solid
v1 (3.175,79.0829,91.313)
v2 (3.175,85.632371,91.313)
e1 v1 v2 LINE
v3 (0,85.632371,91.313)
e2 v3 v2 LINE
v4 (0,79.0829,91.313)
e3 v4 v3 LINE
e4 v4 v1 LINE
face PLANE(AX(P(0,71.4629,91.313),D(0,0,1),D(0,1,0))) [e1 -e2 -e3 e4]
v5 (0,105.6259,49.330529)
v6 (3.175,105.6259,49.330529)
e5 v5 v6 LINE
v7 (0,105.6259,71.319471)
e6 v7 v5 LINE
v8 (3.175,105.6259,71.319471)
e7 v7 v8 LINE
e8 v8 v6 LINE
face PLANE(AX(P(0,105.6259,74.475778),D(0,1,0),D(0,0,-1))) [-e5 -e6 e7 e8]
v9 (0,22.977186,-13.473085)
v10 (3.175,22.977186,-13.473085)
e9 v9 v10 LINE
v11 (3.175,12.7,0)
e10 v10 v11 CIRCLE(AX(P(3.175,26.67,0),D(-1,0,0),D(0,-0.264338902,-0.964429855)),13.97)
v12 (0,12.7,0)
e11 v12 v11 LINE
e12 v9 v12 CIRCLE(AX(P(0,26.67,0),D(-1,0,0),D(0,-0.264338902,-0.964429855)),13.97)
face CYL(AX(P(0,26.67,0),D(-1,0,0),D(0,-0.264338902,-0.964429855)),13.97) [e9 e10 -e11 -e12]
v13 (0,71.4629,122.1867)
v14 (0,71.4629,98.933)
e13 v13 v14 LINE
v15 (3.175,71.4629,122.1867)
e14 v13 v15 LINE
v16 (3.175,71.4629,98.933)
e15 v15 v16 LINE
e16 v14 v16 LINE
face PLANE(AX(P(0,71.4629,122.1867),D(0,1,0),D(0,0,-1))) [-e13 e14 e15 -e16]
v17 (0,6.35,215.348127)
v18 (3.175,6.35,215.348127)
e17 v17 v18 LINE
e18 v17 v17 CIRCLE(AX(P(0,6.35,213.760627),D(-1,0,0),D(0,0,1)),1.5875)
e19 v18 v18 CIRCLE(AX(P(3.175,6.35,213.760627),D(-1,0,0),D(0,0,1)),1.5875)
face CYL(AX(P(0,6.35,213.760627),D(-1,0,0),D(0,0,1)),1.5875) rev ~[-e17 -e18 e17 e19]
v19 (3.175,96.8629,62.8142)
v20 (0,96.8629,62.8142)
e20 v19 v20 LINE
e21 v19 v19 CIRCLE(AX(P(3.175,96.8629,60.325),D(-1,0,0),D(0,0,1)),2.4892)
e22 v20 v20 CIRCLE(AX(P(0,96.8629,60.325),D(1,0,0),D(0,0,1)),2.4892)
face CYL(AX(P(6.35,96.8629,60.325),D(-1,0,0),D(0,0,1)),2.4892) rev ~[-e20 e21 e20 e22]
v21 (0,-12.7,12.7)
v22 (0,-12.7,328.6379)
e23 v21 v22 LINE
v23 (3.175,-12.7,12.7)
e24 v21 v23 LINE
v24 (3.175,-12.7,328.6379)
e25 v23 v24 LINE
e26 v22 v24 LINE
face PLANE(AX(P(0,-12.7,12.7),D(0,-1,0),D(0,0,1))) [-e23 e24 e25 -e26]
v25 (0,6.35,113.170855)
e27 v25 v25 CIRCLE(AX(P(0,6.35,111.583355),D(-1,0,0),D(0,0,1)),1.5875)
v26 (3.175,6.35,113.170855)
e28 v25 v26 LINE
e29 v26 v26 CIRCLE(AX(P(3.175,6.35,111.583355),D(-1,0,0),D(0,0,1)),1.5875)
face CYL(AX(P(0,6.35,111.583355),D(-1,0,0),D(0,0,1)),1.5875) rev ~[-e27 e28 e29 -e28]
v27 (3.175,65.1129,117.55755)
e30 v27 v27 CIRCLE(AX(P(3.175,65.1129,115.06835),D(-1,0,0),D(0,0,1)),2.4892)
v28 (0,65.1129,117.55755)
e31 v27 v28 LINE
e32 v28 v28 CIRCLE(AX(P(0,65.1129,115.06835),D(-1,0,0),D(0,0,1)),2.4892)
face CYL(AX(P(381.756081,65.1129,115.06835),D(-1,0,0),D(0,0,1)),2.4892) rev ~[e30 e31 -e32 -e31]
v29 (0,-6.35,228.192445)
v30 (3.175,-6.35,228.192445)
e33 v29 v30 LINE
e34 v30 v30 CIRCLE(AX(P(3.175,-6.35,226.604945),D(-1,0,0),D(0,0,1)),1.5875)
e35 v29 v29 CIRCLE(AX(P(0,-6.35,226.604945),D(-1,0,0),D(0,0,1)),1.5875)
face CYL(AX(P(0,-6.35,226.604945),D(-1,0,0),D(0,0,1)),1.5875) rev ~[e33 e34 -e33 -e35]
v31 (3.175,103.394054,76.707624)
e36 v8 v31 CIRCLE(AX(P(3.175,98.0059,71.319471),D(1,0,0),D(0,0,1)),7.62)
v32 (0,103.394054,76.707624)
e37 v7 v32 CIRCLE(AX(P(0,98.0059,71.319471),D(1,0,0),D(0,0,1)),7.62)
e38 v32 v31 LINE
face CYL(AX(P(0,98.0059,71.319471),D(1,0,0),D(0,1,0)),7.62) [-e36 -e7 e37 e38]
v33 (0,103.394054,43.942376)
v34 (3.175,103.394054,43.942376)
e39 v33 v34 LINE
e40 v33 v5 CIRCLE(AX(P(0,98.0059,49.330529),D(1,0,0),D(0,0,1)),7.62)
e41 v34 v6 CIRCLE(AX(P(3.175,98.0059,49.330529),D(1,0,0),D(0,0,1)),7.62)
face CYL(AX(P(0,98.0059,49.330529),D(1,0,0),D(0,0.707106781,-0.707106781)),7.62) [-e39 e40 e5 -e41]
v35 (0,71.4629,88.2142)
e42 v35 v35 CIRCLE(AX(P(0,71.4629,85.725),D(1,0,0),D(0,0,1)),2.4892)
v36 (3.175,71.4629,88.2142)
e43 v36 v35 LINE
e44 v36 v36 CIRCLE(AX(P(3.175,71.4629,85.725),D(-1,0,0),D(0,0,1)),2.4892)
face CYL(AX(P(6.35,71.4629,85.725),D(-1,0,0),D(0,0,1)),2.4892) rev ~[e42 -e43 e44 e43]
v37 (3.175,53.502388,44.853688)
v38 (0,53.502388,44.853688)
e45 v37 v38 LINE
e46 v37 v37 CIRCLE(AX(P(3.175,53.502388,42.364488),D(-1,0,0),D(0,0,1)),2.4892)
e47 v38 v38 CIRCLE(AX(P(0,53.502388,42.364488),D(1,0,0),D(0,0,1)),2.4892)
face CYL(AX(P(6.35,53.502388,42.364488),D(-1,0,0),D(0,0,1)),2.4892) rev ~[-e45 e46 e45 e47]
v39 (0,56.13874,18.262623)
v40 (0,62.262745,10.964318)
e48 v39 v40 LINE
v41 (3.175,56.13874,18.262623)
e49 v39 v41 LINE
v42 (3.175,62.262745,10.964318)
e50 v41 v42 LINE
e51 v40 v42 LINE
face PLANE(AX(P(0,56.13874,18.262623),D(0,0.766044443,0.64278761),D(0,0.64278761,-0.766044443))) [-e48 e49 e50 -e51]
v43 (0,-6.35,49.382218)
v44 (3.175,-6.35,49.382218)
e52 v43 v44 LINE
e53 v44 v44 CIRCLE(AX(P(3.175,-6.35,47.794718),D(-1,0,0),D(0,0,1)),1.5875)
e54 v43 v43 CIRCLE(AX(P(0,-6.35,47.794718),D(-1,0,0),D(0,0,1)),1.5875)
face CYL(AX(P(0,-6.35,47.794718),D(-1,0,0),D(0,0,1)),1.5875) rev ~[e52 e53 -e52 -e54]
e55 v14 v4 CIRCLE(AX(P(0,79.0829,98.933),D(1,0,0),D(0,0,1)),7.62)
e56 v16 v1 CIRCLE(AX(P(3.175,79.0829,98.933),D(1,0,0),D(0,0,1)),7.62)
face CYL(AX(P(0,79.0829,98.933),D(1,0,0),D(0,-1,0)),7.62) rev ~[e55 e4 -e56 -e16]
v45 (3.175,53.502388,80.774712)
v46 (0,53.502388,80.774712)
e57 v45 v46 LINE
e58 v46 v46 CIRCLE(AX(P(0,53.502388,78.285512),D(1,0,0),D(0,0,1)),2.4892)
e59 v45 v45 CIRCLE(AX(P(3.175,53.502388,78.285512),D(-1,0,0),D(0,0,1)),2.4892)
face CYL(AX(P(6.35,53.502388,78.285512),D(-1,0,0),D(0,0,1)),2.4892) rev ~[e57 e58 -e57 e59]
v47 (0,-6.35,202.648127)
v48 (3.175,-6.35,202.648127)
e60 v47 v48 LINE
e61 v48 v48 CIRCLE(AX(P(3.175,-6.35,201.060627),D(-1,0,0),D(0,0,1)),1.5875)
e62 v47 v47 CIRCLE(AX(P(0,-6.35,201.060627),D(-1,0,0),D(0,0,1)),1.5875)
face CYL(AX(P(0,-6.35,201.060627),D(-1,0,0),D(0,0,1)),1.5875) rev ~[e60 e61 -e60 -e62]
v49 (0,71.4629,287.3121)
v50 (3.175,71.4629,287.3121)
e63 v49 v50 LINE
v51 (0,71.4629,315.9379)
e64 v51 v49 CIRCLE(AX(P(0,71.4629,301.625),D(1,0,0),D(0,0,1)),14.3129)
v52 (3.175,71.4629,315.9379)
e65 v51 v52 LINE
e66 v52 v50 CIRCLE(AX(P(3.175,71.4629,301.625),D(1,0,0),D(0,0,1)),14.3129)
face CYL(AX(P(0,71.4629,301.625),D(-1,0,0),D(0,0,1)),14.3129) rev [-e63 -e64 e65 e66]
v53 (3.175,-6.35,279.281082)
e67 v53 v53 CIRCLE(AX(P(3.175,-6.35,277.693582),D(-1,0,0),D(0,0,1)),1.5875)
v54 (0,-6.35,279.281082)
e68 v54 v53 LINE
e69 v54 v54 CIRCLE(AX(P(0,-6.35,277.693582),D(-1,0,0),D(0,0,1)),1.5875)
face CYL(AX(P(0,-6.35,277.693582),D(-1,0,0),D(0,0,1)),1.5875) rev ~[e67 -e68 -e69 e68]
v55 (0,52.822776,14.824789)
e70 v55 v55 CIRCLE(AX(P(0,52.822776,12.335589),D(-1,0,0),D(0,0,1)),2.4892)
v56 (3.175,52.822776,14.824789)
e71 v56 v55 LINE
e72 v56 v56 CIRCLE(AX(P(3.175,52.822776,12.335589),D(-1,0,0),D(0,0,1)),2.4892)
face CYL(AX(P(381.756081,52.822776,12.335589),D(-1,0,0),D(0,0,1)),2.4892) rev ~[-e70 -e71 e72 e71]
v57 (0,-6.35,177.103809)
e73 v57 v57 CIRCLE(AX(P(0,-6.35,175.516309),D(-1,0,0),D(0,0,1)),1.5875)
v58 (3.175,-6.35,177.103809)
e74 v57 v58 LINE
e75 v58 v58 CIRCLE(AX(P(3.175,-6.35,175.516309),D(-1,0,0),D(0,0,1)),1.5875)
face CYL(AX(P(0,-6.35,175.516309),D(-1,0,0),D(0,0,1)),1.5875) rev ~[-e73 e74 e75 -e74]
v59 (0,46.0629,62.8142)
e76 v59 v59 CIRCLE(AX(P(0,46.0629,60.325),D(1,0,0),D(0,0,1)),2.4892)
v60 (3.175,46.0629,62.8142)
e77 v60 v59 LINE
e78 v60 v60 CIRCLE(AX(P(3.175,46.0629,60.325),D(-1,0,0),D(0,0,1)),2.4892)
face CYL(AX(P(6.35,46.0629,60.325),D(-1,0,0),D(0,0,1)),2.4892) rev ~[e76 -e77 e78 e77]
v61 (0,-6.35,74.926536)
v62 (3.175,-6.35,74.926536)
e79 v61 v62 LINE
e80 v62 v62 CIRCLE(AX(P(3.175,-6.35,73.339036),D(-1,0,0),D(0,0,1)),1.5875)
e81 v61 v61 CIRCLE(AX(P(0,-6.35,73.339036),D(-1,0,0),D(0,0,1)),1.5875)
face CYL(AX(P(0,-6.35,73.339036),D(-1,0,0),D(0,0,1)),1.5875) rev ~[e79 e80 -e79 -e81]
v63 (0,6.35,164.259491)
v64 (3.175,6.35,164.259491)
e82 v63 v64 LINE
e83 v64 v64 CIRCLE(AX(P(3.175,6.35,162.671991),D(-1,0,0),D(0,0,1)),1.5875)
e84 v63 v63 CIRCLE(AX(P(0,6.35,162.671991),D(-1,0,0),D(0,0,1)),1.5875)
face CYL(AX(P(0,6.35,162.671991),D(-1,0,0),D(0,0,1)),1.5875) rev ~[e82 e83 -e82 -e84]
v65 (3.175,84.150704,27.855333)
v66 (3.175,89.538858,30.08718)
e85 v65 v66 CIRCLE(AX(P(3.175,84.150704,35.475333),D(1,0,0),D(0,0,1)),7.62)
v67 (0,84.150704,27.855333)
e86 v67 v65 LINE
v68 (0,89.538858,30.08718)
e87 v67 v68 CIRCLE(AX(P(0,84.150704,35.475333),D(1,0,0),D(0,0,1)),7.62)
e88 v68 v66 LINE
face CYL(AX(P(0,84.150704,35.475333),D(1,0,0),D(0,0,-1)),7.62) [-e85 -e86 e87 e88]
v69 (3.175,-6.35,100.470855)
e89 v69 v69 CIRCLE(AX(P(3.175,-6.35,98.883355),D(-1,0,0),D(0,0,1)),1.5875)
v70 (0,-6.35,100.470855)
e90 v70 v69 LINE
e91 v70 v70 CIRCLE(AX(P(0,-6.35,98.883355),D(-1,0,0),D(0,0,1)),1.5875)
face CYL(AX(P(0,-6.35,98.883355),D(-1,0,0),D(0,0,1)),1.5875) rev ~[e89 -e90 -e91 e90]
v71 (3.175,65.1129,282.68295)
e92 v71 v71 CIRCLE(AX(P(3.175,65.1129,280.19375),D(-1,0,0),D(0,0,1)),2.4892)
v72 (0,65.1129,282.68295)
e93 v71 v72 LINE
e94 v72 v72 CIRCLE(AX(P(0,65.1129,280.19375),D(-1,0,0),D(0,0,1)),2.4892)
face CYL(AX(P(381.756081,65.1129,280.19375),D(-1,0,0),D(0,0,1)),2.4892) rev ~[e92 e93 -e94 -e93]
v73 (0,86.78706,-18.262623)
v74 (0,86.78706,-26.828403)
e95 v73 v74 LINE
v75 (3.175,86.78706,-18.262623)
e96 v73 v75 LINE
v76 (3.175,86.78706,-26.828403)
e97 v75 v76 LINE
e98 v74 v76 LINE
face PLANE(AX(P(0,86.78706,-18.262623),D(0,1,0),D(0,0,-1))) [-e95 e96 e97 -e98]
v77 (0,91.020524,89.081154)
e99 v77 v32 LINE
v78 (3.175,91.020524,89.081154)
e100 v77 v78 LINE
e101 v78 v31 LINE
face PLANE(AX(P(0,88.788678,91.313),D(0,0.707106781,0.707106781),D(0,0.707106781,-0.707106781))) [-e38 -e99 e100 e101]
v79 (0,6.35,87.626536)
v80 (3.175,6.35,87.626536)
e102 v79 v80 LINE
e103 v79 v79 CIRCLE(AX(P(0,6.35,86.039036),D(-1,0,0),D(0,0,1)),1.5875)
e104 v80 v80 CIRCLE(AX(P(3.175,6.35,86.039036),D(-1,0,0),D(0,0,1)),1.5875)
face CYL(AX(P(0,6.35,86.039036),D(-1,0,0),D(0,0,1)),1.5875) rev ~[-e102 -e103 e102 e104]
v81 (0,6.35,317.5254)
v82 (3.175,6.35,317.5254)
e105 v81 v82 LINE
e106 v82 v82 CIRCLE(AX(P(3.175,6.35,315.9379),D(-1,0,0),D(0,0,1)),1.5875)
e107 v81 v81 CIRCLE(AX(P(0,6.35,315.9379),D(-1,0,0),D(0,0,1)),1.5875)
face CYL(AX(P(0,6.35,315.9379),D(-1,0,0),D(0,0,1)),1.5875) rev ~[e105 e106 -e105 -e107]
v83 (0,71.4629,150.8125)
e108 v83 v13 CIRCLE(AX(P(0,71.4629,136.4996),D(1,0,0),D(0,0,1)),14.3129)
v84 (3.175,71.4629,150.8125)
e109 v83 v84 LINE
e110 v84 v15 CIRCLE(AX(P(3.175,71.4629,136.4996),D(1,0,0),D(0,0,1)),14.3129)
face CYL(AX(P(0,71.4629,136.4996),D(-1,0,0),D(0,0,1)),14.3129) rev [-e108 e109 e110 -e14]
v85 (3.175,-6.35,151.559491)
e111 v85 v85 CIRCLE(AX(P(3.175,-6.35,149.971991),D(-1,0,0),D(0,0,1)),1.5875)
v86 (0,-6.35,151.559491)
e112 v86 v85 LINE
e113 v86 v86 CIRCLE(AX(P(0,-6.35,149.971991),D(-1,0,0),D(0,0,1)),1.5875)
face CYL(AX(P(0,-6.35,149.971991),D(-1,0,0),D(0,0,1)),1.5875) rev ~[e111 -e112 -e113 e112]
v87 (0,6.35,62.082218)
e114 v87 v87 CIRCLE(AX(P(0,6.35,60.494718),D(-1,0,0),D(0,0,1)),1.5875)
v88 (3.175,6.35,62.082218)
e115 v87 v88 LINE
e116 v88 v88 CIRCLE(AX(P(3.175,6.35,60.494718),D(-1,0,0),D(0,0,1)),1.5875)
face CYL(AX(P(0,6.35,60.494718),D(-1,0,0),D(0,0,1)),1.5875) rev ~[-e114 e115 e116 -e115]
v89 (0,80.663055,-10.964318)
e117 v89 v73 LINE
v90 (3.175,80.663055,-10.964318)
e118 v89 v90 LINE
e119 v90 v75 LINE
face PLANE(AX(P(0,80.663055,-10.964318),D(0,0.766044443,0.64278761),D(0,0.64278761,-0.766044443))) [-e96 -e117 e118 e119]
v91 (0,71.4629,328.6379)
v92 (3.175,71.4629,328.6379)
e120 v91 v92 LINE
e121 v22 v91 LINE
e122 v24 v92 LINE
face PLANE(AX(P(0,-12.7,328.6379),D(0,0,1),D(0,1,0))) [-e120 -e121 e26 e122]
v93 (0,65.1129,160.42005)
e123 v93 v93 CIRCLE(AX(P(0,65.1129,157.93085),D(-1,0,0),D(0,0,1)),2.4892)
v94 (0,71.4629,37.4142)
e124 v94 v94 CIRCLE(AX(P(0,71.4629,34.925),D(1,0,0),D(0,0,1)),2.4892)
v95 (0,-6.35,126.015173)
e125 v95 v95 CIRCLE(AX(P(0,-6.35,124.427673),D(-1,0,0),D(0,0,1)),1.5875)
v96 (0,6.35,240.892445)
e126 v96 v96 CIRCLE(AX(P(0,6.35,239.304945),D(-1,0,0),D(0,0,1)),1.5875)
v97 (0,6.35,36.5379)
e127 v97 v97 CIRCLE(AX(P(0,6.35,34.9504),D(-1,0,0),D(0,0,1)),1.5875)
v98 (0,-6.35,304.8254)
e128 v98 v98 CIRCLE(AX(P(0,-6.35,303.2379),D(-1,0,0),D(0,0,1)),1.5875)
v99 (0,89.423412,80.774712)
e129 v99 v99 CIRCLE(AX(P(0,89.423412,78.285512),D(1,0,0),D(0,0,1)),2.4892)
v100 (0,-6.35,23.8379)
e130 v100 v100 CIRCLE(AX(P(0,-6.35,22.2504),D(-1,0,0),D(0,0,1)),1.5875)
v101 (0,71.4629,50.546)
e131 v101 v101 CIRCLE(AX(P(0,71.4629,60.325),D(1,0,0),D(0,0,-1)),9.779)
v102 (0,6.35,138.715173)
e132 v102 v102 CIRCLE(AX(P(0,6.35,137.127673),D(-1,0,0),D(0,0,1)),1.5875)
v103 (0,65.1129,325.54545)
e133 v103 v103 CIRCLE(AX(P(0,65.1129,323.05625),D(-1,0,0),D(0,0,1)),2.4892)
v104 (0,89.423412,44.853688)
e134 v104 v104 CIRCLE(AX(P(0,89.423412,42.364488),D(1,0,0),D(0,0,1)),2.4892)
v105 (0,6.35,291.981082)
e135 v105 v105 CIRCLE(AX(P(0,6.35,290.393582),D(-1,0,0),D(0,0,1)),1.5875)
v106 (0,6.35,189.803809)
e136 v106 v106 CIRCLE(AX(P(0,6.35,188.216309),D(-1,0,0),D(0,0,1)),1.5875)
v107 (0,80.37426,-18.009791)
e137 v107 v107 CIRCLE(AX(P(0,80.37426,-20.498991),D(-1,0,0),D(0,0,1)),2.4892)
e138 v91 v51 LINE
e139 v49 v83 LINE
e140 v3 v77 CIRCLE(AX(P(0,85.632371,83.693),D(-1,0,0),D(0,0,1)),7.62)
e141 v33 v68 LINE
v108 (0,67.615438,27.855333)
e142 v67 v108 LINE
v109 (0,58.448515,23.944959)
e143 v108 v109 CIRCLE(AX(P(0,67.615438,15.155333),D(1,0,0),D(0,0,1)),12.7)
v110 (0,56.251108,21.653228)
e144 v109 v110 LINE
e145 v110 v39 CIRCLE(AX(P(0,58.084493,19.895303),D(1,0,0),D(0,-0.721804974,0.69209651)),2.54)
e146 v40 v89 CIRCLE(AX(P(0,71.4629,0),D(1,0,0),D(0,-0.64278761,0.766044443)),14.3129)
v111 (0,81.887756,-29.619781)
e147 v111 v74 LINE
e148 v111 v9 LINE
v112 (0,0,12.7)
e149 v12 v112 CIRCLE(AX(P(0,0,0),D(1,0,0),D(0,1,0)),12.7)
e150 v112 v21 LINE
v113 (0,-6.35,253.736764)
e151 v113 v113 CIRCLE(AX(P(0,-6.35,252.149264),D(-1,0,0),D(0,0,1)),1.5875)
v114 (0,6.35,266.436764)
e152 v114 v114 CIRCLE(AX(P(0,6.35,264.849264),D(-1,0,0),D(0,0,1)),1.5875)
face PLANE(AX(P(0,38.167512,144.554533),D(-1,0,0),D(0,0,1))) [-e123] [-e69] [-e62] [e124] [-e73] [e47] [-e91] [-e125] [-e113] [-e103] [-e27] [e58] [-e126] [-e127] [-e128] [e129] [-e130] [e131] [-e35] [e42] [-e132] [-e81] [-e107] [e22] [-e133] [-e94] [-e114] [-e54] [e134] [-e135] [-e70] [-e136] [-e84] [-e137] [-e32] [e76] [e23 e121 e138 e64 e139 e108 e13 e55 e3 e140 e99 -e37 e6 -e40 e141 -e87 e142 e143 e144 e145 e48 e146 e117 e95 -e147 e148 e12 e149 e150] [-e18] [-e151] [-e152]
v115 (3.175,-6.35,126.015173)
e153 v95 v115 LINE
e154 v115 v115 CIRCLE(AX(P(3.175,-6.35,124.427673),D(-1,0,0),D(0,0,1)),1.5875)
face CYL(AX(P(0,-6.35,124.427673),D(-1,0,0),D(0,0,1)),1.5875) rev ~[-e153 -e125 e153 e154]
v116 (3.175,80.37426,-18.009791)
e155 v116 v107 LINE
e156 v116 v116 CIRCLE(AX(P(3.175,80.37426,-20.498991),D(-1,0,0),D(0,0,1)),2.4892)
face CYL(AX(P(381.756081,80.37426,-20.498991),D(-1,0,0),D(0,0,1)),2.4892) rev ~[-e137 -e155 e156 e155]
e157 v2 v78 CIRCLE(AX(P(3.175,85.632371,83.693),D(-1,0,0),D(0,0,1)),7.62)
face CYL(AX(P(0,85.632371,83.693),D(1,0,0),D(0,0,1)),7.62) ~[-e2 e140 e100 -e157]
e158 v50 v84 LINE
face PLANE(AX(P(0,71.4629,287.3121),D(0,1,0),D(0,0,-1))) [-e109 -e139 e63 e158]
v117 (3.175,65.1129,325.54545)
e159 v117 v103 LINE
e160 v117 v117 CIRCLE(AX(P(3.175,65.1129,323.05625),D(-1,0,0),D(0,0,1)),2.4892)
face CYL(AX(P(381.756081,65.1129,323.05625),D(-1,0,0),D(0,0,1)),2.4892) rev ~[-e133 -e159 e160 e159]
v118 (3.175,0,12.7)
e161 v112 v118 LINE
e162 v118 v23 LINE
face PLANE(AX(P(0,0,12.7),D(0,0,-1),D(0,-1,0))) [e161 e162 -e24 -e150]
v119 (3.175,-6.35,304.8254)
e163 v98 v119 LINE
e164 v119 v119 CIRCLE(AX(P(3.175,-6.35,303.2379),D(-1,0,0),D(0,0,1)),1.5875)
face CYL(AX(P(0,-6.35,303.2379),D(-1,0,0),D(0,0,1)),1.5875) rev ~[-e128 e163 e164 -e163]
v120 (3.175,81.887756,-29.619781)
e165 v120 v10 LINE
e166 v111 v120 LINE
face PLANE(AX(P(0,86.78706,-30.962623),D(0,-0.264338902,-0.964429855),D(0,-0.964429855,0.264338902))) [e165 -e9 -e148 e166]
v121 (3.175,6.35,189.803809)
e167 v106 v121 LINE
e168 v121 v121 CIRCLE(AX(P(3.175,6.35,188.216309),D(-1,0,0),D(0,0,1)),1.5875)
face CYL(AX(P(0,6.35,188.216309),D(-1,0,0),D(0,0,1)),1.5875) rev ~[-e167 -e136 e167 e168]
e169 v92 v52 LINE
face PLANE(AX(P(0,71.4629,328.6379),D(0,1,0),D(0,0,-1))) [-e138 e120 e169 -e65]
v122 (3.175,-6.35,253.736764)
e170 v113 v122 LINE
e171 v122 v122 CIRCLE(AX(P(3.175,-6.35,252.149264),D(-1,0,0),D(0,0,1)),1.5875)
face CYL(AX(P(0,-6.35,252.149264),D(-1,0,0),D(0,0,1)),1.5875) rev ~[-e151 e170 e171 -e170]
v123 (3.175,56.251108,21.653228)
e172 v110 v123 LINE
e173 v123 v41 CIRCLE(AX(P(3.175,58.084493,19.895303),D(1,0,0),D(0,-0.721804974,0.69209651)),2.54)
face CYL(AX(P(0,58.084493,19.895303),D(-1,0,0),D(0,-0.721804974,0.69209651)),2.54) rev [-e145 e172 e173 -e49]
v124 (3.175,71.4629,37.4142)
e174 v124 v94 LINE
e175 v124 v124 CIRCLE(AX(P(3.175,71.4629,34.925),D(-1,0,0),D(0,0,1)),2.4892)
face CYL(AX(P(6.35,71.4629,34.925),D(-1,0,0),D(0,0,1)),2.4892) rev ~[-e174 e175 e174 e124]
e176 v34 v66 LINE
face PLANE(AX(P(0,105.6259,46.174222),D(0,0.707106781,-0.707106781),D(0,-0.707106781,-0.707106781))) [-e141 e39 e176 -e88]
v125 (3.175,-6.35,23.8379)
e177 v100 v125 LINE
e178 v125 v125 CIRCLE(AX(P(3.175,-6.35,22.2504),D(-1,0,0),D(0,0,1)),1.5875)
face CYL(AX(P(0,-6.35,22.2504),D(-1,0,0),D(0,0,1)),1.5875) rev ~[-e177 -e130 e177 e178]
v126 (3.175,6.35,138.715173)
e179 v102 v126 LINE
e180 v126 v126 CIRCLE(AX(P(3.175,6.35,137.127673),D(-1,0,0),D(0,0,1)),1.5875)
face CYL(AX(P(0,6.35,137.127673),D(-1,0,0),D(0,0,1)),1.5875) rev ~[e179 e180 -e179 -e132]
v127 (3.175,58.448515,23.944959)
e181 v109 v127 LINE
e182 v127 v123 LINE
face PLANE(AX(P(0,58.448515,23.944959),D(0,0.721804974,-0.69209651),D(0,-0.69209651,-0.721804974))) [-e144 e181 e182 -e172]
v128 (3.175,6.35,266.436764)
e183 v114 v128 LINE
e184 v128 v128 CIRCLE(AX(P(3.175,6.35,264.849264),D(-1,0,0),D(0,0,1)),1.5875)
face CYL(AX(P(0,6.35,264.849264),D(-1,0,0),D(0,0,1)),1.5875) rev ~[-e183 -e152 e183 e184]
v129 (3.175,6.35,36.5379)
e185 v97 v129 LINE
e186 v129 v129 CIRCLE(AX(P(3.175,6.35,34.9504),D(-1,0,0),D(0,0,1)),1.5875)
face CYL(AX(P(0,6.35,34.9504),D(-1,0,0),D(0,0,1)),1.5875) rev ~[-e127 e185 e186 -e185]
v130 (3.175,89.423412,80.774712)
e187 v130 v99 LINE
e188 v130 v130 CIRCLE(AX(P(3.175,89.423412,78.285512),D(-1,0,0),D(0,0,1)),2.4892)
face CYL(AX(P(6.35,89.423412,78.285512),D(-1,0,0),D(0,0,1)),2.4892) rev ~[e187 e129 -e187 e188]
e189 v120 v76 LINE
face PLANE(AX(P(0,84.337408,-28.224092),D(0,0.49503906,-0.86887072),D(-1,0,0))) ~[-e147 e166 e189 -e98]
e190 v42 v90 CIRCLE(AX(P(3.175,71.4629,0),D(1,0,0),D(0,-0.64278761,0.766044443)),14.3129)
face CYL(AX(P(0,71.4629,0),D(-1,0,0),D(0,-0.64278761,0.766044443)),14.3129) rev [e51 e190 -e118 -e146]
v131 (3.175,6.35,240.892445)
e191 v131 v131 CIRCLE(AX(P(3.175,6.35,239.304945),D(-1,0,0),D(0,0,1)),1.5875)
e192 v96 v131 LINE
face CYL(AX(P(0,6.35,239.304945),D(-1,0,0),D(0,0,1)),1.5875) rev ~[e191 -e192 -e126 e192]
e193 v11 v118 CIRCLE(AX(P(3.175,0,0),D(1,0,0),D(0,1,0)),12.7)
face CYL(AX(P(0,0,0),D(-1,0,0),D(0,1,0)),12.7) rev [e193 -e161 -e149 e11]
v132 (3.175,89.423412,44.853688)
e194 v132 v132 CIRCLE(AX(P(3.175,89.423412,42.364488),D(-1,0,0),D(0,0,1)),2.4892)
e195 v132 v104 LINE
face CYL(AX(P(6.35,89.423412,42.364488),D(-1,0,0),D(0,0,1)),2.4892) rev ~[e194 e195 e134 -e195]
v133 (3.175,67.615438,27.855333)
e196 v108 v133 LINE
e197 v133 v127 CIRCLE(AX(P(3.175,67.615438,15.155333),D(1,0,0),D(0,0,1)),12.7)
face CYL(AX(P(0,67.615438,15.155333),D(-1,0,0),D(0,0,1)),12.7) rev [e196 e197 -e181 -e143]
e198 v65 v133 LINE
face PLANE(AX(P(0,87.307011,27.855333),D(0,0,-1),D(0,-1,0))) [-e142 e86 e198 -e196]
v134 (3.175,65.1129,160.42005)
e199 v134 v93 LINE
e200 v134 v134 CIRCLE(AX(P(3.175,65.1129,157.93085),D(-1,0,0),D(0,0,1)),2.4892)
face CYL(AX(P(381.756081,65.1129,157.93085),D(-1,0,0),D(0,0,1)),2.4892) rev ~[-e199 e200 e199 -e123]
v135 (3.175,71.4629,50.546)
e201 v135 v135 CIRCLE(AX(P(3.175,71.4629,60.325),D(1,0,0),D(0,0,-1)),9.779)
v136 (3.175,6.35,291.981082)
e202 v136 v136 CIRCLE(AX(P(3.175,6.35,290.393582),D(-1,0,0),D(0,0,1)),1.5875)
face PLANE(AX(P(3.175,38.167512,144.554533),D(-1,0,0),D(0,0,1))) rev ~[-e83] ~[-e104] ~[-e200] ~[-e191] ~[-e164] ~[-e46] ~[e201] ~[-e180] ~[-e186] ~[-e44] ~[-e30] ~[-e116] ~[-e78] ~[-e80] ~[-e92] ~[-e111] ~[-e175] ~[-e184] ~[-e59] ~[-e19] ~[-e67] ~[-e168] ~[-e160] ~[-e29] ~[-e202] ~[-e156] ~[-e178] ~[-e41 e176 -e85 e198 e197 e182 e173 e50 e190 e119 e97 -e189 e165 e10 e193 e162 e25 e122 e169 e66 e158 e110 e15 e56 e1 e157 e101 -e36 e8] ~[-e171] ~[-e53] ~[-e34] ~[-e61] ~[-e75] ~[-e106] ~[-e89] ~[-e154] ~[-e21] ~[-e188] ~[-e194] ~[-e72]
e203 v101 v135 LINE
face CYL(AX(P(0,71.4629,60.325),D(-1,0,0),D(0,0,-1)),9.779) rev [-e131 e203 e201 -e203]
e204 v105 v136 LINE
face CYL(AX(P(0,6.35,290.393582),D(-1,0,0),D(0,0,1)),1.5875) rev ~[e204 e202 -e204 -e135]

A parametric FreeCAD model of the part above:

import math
import FreeCAD as App
import Part
import Sketcher
Q = App.Units.Quantity


def edges_at(feature, points):
    """Names of the edges that pass closest to the given points."""
    edges = feature.Shape.Edges
    near = lambda p: min(range(len(edges)), key=lambda i: edges[i].distToShape(Part.Vertex(*p))[0])
    return sorted({f"Edge{near(p) + 1}" for p in points})

doc = App.newDocument("Part")
params = doc.addObject("Spreadsheet::Sheet", "Params")
for row, (alias, value) in enumerate([
    ("sketch1_radius", "0.5 in"),
    ("sketch1_radius2", "0.1 in"),
    ("sketch1_diameter", "0.19 in"),
    ("sketch1_diameter2", "0.77 in"),
    ("sketch1_radius3", "0.55 in"),
    ("pad1_length", "0.125 in"),
    ("sketch2_diameter", "0.196 in"),
    ("hole_diameter", "0.196 in"),
    ("sketch3_diameter", "0.196 in"),
    ("hole2_diameter", "0.196 in"),
    ("hole2_depth", "0.125 in"),
    ("chamfer_size", "0.2 in"),
    ("chamfer_size2", "4.13422 mm"),
    ("fillet_radius", "0.3 in"),
    ("sketch4_diameter", "0.125 in"),
], start=1):
    params.set(f"A{row}", alias)
    params.set(f"B{row}", "=" + value)
    params.setAlias(f"B{row}", alias)

body = doc.addObject("PartDesign::Body", "Body")

# Sketch on YZ plane
sketch1 = body.newObject("Sketcher::SketchObject", "Sketch")
sketch1.AttachmentSupport = (doc.getObject("YZ_Plane"), [""])
sketch1.MapMode = "FlatFace"
sketch1.addGeometry([
    Part.LineSegment(App.Vector(-12.7, 328.6, 0), App.Vector(-12.7, 12.7, 0)),  # 0
    Part.LineSegment(App.Vector(-12.7, 12.7, 0), App.Vector(0, 12.7, 0)),  # 1
    Part.ArcOfCircle(Part.Circle(App.Vector(0, 0, 0), App.Vector(0, 0, 1), 12.7), math.radians(0), math.radians(90)),  # 2
    Part.ArcOfCircle(Part.Circle(App.Vector(26.7, 0, 0), App.Vector(0, 0, 1), 14), math.radians(-180), math.radians(-105)),  # 3
    Part.LineSegment(App.Vector(23, -13.5, 0), App.Vector(86.8, -31, 0)),  # 4
    Part.LineSegment(App.Vector(86.8, -31, 0), App.Vector(86.8, -18.3, 0)),  # 5
    Part.LineSegment(App.Vector(86.8, -18.3, 0), App.Vector(80.7, -11, 0)),  # 6
    Part.ArcOfCircle(Part.Circle(App.Vector(71.5, 0, 0), App.Vector(0, 0, 1), 14.3), math.radians(130), math.radians(310)),  # 7
    Part.LineSegment(App.Vector(62.3, 11, 0), App.Vector(56.1, 18.3, 0)),  # 8
    Part.ArcOfCircle(Part.Circle(App.Vector(58.1, 19.9, 0), App.Vector(0, 0, 1), 2.5), math.radians(136), math.radians(220)),  # 9
    Part.LineSegment(App.Vector(56.3, 21.7, 0), App.Vector(58.4, 23.9, 0)),  # 10
    Part.ArcOfCircle(Part.Circle(App.Vector(67.6, 15.2, 0), App.Vector(0, 0, 1), 12.7), math.radians(90), math.radians(136)),  # 11
    Part.LineSegment(App.Vector(67.6, 27.9, 0), App.Vector(87.3, 27.9, 0)),  # 12
    Part.LineSegment(App.Vector(87.3, 27.9, 0), App.Vector(105.6, 46.2, 0)),  # 13
    Part.LineSegment(App.Vector(105.6, 46.2, 0), App.Vector(105.6, 74.5, 0)),  # 14
    Part.LineSegment(App.Vector(105.6, 74.5, 0), App.Vector(88.8, 91.3, 0)),  # 15
    Part.LineSegment(App.Vector(88.8, 91.3, 0), App.Vector(71.5, 91.3, 0)),  # 16
    Part.LineSegment(App.Vector(71.5, 91.3, 0), App.Vector(71.5, 122.2, 0)),  # 17
    Part.ArcOfCircle(Part.Circle(App.Vector(71.5, 136.5, 0), App.Vector(0, 0, 1), 14.3), math.radians(90), math.radians(270)),  # 18
    Part.LineSegment(App.Vector(71.5, 150.8, 0), App.Vector(71.5, 287.3, 0)),  # 19
    Part.ArcOfCircle(Part.Circle(App.Vector(71.5, 301.6, 0), App.Vector(0, 0, 1), 14.3), math.radians(90), math.radians(270)),  # 20
    Part.LineSegment(App.Vector(71.5, 315.9, 0), App.Vector(71.5, 328.6, 0)),  # 21
    Part.LineSegment(App.Vector(71.5, 328.6, 0), App.Vector(-12.7, 328.6, 0)),  # 22
    Part.Circle(App.Vector(53.5, 42.4, 0), App.Vector(0, 0, 1), 2.4),  # 23
    Part.Circle(App.Vector(46.1, 60.3, 0), App.Vector(0, 0, 1), 2.4),  # 24
    Part.Circle(App.Vector(53.5, 78.3, 0), App.Vector(0, 0, 1), 2.4),  # 25
    Part.Circle(App.Vector(71.5, 34.9, 0), App.Vector(0, 0, 1), 2.4),  # 26
    Part.Circle(App.Vector(89.4, 42.4, 0), App.Vector(0, 0, 1), 2.4),  # 27
    Part.Circle(App.Vector(71.5, 60.3, 0), App.Vector(0, 0, 1), 9.8),  # 28
    Part.Circle(App.Vector(71.5, 85.7, 0), App.Vector(0, 0, 1), 2.4),  # 29
    Part.Circle(App.Vector(96.9, 60.3, 0), App.Vector(0, 0, 1), 2.4),  # 30
    Part.Circle(App.Vector(89.4, 78.3, 0), App.Vector(0, 0, 1), 2.4),  # 31
], False)
sketch1.addConstraint([
    Sketcher.Constraint("Coincident", 0, 2, 1, 1),
    Sketcher.Constraint("Tangent", 1, 2, 2, 2),
    Sketcher.Constraint("Tangent", 2, 1, 3, 1),
    Sketcher.Constraint("Tangent", 3, 2, 4, 1),
    Sketcher.Constraint("Coincident", 4, 2, 5, 1),
    Sketcher.Constraint("Coincident", 5, 2, 6, 1),
    Sketcher.Constraint("Coincident", 6, 2, 7, 2),
    Sketcher.Constraint("Coincident", 7, 1, 8, 1),
    Sketcher.Constraint("Tangent", 8, 2, 9, 2),
    Sketcher.Constraint("Tangent", 9, 1, 10, 1),
    Sketcher.Constraint("Tangent", 10, 2, 11, 2),
    Sketcher.Constraint("Tangent", 11, 1, 12, 1),
    Sketcher.Constraint("Coincident", 12, 2, 13, 1),
    Sketcher.Constraint("Coincident", 13, 2, 14, 1),
    Sketcher.Constraint("Coincident", 14, 2, 15, 1),
    Sketcher.Constraint("Coincident", 15, 2, 16, 1),
    Sketcher.Constraint("Coincident", 16, 2, 17, 1),
    Sketcher.Constraint("Coincident", 17, 2, 18, 2),
    Sketcher.Constraint("Coincident", 18, 1, 19, 1),
    Sketcher.Constraint("Coincident", 19, 2, 20, 2),
    Sketcher.Constraint("Coincident", 20, 1, 21, 1),
    Sketcher.Constraint("Coincident", 21, 2, 22, 1),
    Sketcher.Constraint("Coincident", 22, 2, 0, 1),
    Sketcher.Constraint("Vertical", 0),
    Sketcher.Constraint("Horizontal", 1),
    Sketcher.Constraint("Vertical", 5),
    Sketcher.Constraint("Horizontal", 12),
    Sketcher.Constraint("Vertical", 14),
    Sketcher.Constraint("Horizontal", 16),
    Sketcher.Constraint("Vertical", 17),
    Sketcher.Constraint("Vertical", 19),
    Sketcher.Constraint("Vertical", 21),
    Sketcher.Constraint("Horizontal", 22),
    Sketcher.Constraint("Coincident", 2, 3, -1, 1),
    Sketcher.Constraint("Equal", 2, 11),
    Sketcher.Constraint("Equal", 7, 18),
    Sketcher.Constraint("Equal", 18, 20),
    Sketcher.Constraint("Equal", 23, 24),
    Sketcher.Constraint("Equal", 24, 25),
    Sketcher.Constraint("Equal", 25, 26),
    Sketcher.Constraint("Equal", 26, 27),
    Sketcher.Constraint("Equal", 27, 29),
    Sketcher.Constraint("Equal", 29, 30),
    Sketcher.Constraint("Equal", 30, 31),
    Sketcher.Constraint("PointOnObject", 3, 3, -1),
    Sketcher.Constraint("PointOnObject", 7, 3, -1),
    Sketcher.Constraint("Parallel", 6, 8),
    Sketcher.Constraint("Perpendicular", 13, 15),
    Sketcher.Constraint("Horizontal", 23, 3, 27, 3),
    Sketcher.Constraint("Horizontal", 24, 3, 28, 3),
    Sketcher.Constraint("Horizontal", 28, 3, 30, 3),
    Sketcher.Constraint("Horizontal", 25, 3, 31, 3),
    Sketcher.Constraint("Vertical", 7, 3, 18, 3),
    Sketcher.Constraint("Vertical", 18, 3, 20, 3),
    Sketcher.Constraint("Vertical", 23, 3, 25, 3),
    Sketcher.Constraint("Vertical", 20, 3, 26, 3),
    Sketcher.Constraint("Vertical", 26, 3, 28, 3),
    Sketcher.Constraint("Vertical", 28, 3, 29, 3),
    Sketcher.Constraint("Vertical", 27, 3, 31, 3),
    Sketcher.Constraint("Vertical", 29, 3, 16, 2),
    Sketcher.Constraint("Vertical", 17, 2, 18, 1),
    Sketcher.Constraint("Vertical", 19, 2, 20, 1),
    Sketcher.Constraint("Equal", 1, 5),
    Sketcher.Constraint("Equal", 5, 21),
    Sketcher.Constraint("Equal", 6, 8),
    Sketcher.Constraint("Radius", 2, Q("0.5 in")),
    Sketcher.Constraint("Radius", 9, Q("0.1 in")),
    Sketcher.Constraint("Diameter", 23, Q("0.19 in")),
    Sketcher.Constraint("Diameter", 28, Q("0.77 in")),
    Sketcher.Constraint("Radius", 3, Q("0.55 in")),
    Sketcher.Constraint("DistanceX", 1, 1, 1, 2, Q("0.5 in")),
    Sketcher.Constraint("Angle", 6, Q("130 deg")),
    Sketcher.Constraint("Angle", 13, Q("45 deg")),
    Sketcher.Constraint("DistanceX", 24, 3, 7, 3, Q("1 in")),
    Sketcher.Constraint("DistanceY", 26, 3, 24, 3, Q("1 in")),
    Sketcher.Constraint("DistanceY", 28, 3, 29, 3, Q("1 in")),
    Sketcher.Constraint("DistanceX", 28, 3, 30, 3, Q("1 in")),
    Sketcher.Constraint("Radius", 7, Q("0.5635 in")),
    Sketcher.Constraint("DistanceY", 19, 1, 19, 2, Q("5.374 in")),
    Sketcher.Constraint("DistanceY", 29, 3, 15, 2, Q("0.22 in")),
    Sketcher.Constraint("Distance", 10, Q("0.125 in")),
    Sketcher.Constraint("DistanceX", 22, 2, 22, 1, Q("3.3135 in")),
    Sketcher.Constraint("DistanceY", 0, 2, 0, 1, Q("12.4385 in")),
    Sketcher.Constraint("DistanceY", 17, 1, 17, 2, Q("1.2155 in")),
    Sketcher.Constraint("DistanceX", 30, 3, 13, 2, Q("0.345 in")),
    Sketcher.Constraint("DistanceX", 12, 2, 27, 3, 2.116401),
    Sketcher.Constraint("Distance", 6, 9.527261),
    Sketcher.Constraint("Distance", 13, 25.906821),
    Sketcher.Constraint("DistanceX", 12, 1, 12, 2, 19.691573),
    Sketcher.Constraint("DistanceX", 16, 2, 16, 1, 17.325778),
    Sketcher.Constraint("DistanceY", 14, 1, 14, 2, 28.301556),
    Sketcher.Constraint("DistanceX", -1, 1, 4, 2, 86.78706),
    Sketcher.Constraint("DistanceX", 23, 3, 11, 3, 14.11305),
    Sketcher.Constraint("DistanceY", 9, 3, 25, 3, 58.390209),
    Sketcher.Constraint("DistanceY", 27, 3, 14, 2, 32.11129),
])
sketch1.setExpression("Constraints[65]", "Params.sketch1_radius")
sketch1.setExpression("Constraints[66]", "Params.sketch1_radius2")
sketch1.setExpression("Constraints[67]", "Params.sketch1_diameter")
sketch1.setExpression("Constraints[68]", "Params.sketch1_diameter2")
sketch1.setExpression("Constraints[69]", "Params.sketch1_radius3")
pad1 = body.newObject("PartDesign::Pad", "Pad")
pad1.Profile = sketch1
pad1.setExpression("Length", "Params.pad1_length")

# Sketch on YZ plane
sketch2 = body.newObject("Sketcher::SketchObject", "Sketch001")
sketch2.AttachmentSupport = (doc.getObject("YZ_Plane"), [""])
sketch2.MapMode = "FlatFace"
sketch2.AttachmentOffset = App.Placement(App.Vector(0, 0, 0.125 * 25.4), App.Rotation())
sketch2.addGeometry([
    Part.Circle(App.Vector(65.1, 323.1, 0), App.Vector(0, 0, 1), 2.5),  # 0
    Part.Circle(App.Vector(65.1, 280.2, 0), App.Vector(0, 0, 1), 2.5),  # 1
    Part.Circle(App.Vector(65.1, 157.9, 0), App.Vector(0, 0, 1), 2.5),  # 2
    Part.Circle(App.Vector(65.1, 115.1, 0), App.Vector(0, 0, 1), 2.5),  # 3
    Part.Circle(App.Vector(52.8, 12.3, 0), App.Vector(0, 0, 1), 2.5),  # 4
    Part.Circle(App.Vector(80.4, -20.5, 0), App.Vector(0, 0, 1), 2.5),  # 5
], False)
sketch2.addConstraint([
    Sketcher.Constraint("Equal", 0, 1),
    Sketcher.Constraint("Equal", 1, 2),
    Sketcher.Constraint("Equal", 2, 3),
    Sketcher.Constraint("Equal", 3, 4),
    Sketcher.Constraint("Equal", 4, 5),
    Sketcher.Constraint("Vertical", 0, 3, 1, 3),
    Sketcher.Constraint("Vertical", 1, 3, 2, 3),
    Sketcher.Constraint("Vertical", 2, 3, 3, 3),
    Sketcher.Constraint("Diameter", 0, Q("0.196 in")),
    Sketcher.Constraint("DistanceY", -1, 1, 0, 3, Q("12.71875 in")),
    Sketcher.Constraint("DistanceY", -1, 1, 1, 3, Q("11.03125 in")),
    Sketcher.Constraint("DistanceY", 2, 3, 0, 3, Q("6.501 in")),
    Sketcher.Constraint("DistanceY", 3, 3, 2, 3, Q("1.6875 in")),
    Sketcher.Constraint("DistanceX", -1, 1, 0, 3, Q("2.5635 in")),
    Sketcher.Constraint("DistanceY", 5, 3, 4, 3, Q("1.2927 in")),
    Sketcher.Constraint("DistanceY", -1, 1, 4, 3, 12.335589),
    Sketcher.Constraint("DistanceX", -1, 1, 5, 3, 80.37426),
    Sketcher.Constraint("DistanceX", -1, 1, 4, 3, 52.822776),
])
sketch2.setExpression("Constraints[8]", "Params.sketch2_diameter")
doc.recompute()
hole = body.newObject("PartDesign::Hole", "Hole")
hole.Profile = sketch2
hole.ThreadType = "None"
hole.setExpression("Diameter", "Params.hole_diameter")
hole.DepthType = "ThroughAll"

# Sketch on YZ plane
sketch3 = body.newObject("Sketcher::SketchObject", "Sketch002")
sketch3.AttachmentSupport = (doc.getObject("YZ_Plane"), [""])
sketch3.MapMode = "FlatFace"
sketch3.AttachmentOffset = App.Placement(App.Vector(0, 0, 0.125 * 25.4), App.Rotation())
sketch3.addGeometry([
    Part.Circle(App.Vector(96.9, 60.3, 0), App.Vector(0, 0, 1), 2.5),  # 0
    Part.Circle(App.Vector(89.4, 42.4, 0), App.Vector(0, 0, 1), 2.5),  # 1
    Part.Circle(App.Vector(71.5, 34.9, 0), App.Vector(0, 0, 1), 2.5),  # 2
    Part.Circle(App.Vector(53.5, 42.4, 0), App.Vector(0, 0, 1), 2.5),  # 3
    Part.Circle(App.Vector(46.1, 60.3, 0), App.Vector(0, 0, 1), 2.5),  # 4
    Part.Circle(App.Vector(53.5, 78.3, 0), App.Vector(0, 0, 1), 2.5),  # 5
    Part.Circle(App.Vector(71.5, 85.7, 0), App.Vector(0, 0, 1), 2.5),  # 6
    Part.Circle(App.Vector(89.4, 78.3, 0), App.Vector(0, 0, 1), 2.5),  # 7
], False)
sketch3.addConstraint([
    Sketcher.Constraint("Equal", 0, 1),
    Sketcher.Constraint("Equal", 1, 2),
    Sketcher.Constraint("Equal", 2, 3),
    Sketcher.Constraint("Equal", 3, 4),
    Sketcher.Constraint("Equal", 4, 5),
    Sketcher.Constraint("Equal", 5, 6),
    Sketcher.Constraint("Equal", 6, 7),
    Sketcher.Constraint("Horizontal", 1, 3, 3, 3),
    Sketcher.Constraint("Horizontal", 0, 3, 4, 3),
    Sketcher.Constraint("Horizontal", 5, 3, 7, 3),
    Sketcher.Constraint("Vertical", 3, 3, 5, 3),
    Sketcher.Constraint("Vertical", 2, 3, 6, 3),
    Sketcher.Constraint("Vertical", 1, 3, 7, 3),
    Sketcher.Constraint("Diameter", 0, Q("0.196 in")),
    Sketcher.Constraint("DistanceX", 2, 3, 0, 3, Q("1 in")),
    Sketcher.Constraint("DistanceY", 2, 3, 0, 3, Q("1 in")),
    Sketcher.Constraint("DistanceX", 4, 3, 2, 3, Q("1 in")),
    Sketcher.Constraint("DistanceY", 0, 3, 6, 3, Q("1 in")),
    Sketcher.Constraint("DistanceY", -1, 1, 0, 3, Q("2.375 in")),
    Sketcher.Constraint("DistanceX", -1, 1, 0, 3, Q("3.8135 in")),
    Sketcher.Constraint("DistanceX", -1, 1, 1, 3, 89.423412),
    Sketcher.Constraint("DistanceY", -1, 1, 1, 3, 42.364488),
    Sketcher.Constraint("DistanceX", -1, 1, 3, 3, 53.502388),
    Sketcher.Constraint("DistanceY", -1, 1, 5, 3, 78.285512),
])
sketch3.setExpression("Constraints[13]", "Params.sketch3_diameter")
doc.recompute()
hole2 = body.newObject("PartDesign::Hole", "Hole001")
hole2.Profile = sketch3
hole2.ThreadType = "None"
hole2.setExpression("Diameter", "Params.hole2_diameter")
hole2.DepthType = "Dimension"
hole2.setExpression("Depth", "Params.hole2_depth")
hole2.DrillPoint = "Angled"
hole2.DrillPointAngle = 118
doc.recompute()

chamfer = body.newObject("PartDesign::Chamfer", "Chamfer")
chamfer.Base = (hole2, edges_at(hole2, [(1.587, 86.787, -30.963)]))
chamfer.ChamferType = "Two distances"
chamfer.setExpression("Size", "Params.chamfer_size")
chamfer.setExpression("Size2", "Params.chamfer_size2")
doc.recompute()

fillet = body.newObject("PartDesign::Fillet", "Fillet")
fillet.Base = (chamfer, edges_at(chamfer, [
    (1.587, 71.463, 91.313),
    (1.587, 88.789, 91.313),
    (1.587, 105.626, 74.476),
    (1.587, 105.626, 46.174),
    (1.587, 87.307, 27.855),
]))
fillet.setExpression("Radius", "Params.fillet_radius")

# Sketch on YZ plane
sketch4 = body.newObject("Sketcher::SketchObject", "Sketch003")
sketch4.AttachmentSupport = (doc.getObject("YZ_Plane"), [""])
sketch4.MapMode = "FlatFace"
sketch4.addGeometry([
    Part.Circle(App.Vector(6.3, 315.9, 0), App.Vector(0, 0, 1), 1.6),  # 0
    Part.Circle(App.Vector(-6.3, 303.2, 0), App.Vector(0, 0, 1), 1.6),  # 1
    Part.Circle(App.Vector(6.3, 290.4, 0), App.Vector(0, 0, 1), 1.6),  # 2
    Part.Circle(App.Vector(-6.3, 277.7, 0), App.Vector(0, 0, 1), 1.6),  # 3
    Part.Circle(App.Vector(6.3, 264.8, 0), App.Vector(0, 0, 1), 1.6),  # 4
    Part.Circle(App.Vector(-6.3, 252.1, 0), App.Vector(0, 0, 1), 1.6),  # 5
    Part.Circle(App.Vector(6.3, 239.3, 0), App.Vector(0, 0, 1), 1.6),  # 6
    Part.Circle(App.Vector(-6.3, 226.6, 0), App.Vector(0, 0, 1), 1.6),  # 7
    Part.Circle(App.Vector(6.3, 213.8, 0), App.Vector(0, 0, 1), 1.6),  # 8
    Part.Circle(App.Vector(-6.3, 201.1, 0), App.Vector(0, 0, 1), 1.6),  # 9
    Part.Circle(App.Vector(6.3, 188.2, 0), App.Vector(0, 0, 1), 1.6),  # 10
    Part.Circle(App.Vector(-6.3, 175.5, 0), App.Vector(0, 0, 1), 1.6),  # 11
    Part.Circle(App.Vector(6.3, 162.7, 0), App.Vector(0, 0, 1), 1.6),  # 12
    Part.Circle(App.Vector(-6.3, 150, 0), App.Vector(0, 0, 1), 1.6),  # 13
    Part.Circle(App.Vector(6.3, 137.1, 0), App.Vector(0, 0, 1), 1.6),  # 14
    Part.Circle(App.Vector(-6.3, 124.4, 0), App.Vector(0, 0, 1), 1.6),  # 15
    Part.Circle(App.Vector(6.3, 111.6, 0), App.Vector(0, 0, 1), 1.6),  # 16
    Part.Circle(App.Vector(-6.3, 98.9, 0), App.Vector(0, 0, 1), 1.6),  # 17
    Part.Circle(App.Vector(6.3, 86, 0), App.Vector(0, 0, 1), 1.6),  # 18
    Part.Circle(App.Vector(-6.3, 73.3, 0), App.Vector(0, 0, 1), 1.6),  # 19
    Part.Circle(App.Vector(6.3, 60.5, 0), App.Vector(0, 0, 1), 1.6),  # 20
    Part.Circle(App.Vector(-6.3, 47.8, 0), App.Vector(0, 0, 1), 1.6),  # 21
    Part.Circle(App.Vector(6.3, 35, 0), App.Vector(0, 0, 1), 1.6),  # 22
    Part.Circle(App.Vector(-6.3, 22.3, 0), App.Vector(0, 0, 1), 1.6),  # 23
], False)
sketch4.addConstraint([
    Sketcher.Constraint("Equal", 0, 1),
    Sketcher.Constraint("Equal", 1, 2),
    Sketcher.Constraint("Equal", 2, 3),
    Sketcher.Constraint("Equal", 3, 4),
    Sketcher.Constraint("Equal", 4, 5),
    Sketcher.Constraint("Equal", 5, 6),
    Sketcher.Constraint("Equal", 6, 7),
    Sketcher.Constraint("Equal", 7, 8),
    Sketcher.Constraint("Equal", 8, 9),
    Sketcher.Constraint("Equal", 9, 10),
    Sketcher.Constraint("Equal", 10, 11),
    Sketcher.Constraint("Equal", 11, 12),
    Sketcher.Constraint("Equal", 12, 13),
    Sketcher.Constraint("Equal", 13, 14),
    Sketcher.Constraint("Equal", 14, 15),
    Sketcher.Constraint("Equal", 15, 16),
    Sketcher.Constraint("Equal", 16, 17),
    Sketcher.Constraint("Equal", 17, 18),
    Sketcher.Constraint("Equal", 18, 19),
    Sketcher.Constraint("Equal", 19, 20),
    Sketcher.Constraint("Equal", 20, 21),
    Sketcher.Constraint("Equal", 21, 22),
    Sketcher.Constraint("Equal", 22, 23),
    Sketcher.Constraint("Vertical", 0, 3, 2, 3),
    Sketcher.Constraint("Vertical", 1, 3, 3, 3),
    Sketcher.Constraint("Vertical", 2, 3, 4, 3),
    Sketcher.Constraint("Vertical", 3, 3, 5, 3),
    Sketcher.Constraint("Vertical", 4, 3, 6, 3),
    Sketcher.Constraint("Vertical", 5, 3, 7, 3),
    Sketcher.Constraint("Vertical", 6, 3, 8, 3),
    Sketcher.Constraint("Vertical", 7, 3, 9, 3),
    Sketcher.Constraint("Vertical", 8, 3, 10, 3),
    Sketcher.Constraint("Vertical", 9, 3, 11, 3),
    Sketcher.Constraint("Vertical", 10, 3, 12, 3),
    Sketcher.Constraint("Vertical", 11, 3, 13, 3),
    Sketcher.Constraint("Vertical", 12, 3, 14, 3),
    Sketcher.Constraint("Vertical", 13, 3, 15, 3),
    Sketcher.Constraint("Vertical", 14, 3, 16, 3),
    Sketcher.Constraint("Vertical", 15, 3, 17, 3),
    Sketcher.Constraint("Vertical", 16, 3, 18, 3),
    Sketcher.Constraint("Vertical", 17, 3, 19, 3),
    Sketcher.Constraint("Vertical", 18, 3, 20, 3),
    Sketcher.Constraint("Vertical", 19, 3, 21, 3),
    Sketcher.Constraint("Vertical", 20, 3, 22, 3),
    Sketcher.Constraint("Vertical", 21, 3, 23, 3),
    Sketcher.Constraint("Diameter", 0, Q("0.125 in")),
    Sketcher.Constraint("DistanceX", 1, 3, 0, 3, Q("0.5 in")),
    Sketcher.Constraint("DistanceY", 1, 3, 0, 3, Q("0.5 in")),
    Sketcher.Constraint("DistanceY", 3, 3, 2, 3, Q("0.5 in")),
    Sketcher.Constraint("DistanceY", 5, 3, 4, 3, Q("0.5 in")),
    Sketcher.Constraint("DistanceY", 7, 3, 6, 3, Q("0.5 in")),
    Sketcher.Constraint("DistanceY", 9, 3, 8, 3, Q("0.5 in")),
    Sketcher.Constraint("DistanceY", 11, 3, 10, 3, Q("0.5 in")),
    Sketcher.Constraint("DistanceY", 13, 3, 12, 3, Q("0.5 in")),
    Sketcher.Constraint("DistanceY", 15, 3, 14, 3, Q("0.5 in")),
    Sketcher.Constraint("DistanceY", 17, 3, 16, 3, Q("0.5 in")),
    Sketcher.Constraint("DistanceY", 19, 3, 18, 3, Q("0.5 in")),
    Sketcher.Constraint("DistanceY", 21, 3, 20, 3, Q("0.5 in")),
    Sketcher.Constraint("DistanceY", 23, 3, 22, 3, Q("0.5 in")),
    Sketcher.Constraint("DistanceX", -1, 1, 0, 3, Q("0.25 in")),
    Sketcher.Constraint("DistanceY", -1, 1, 22, 3, Q("1.376 in")),
    Sketcher.Constraint("DistanceY", -1, 1, 0, 3, Q("12.4385 in")),
    Sketcher.Constraint("DistanceY", -1, 1, 2, 3, 290.393582),
    Sketcher.Constraint("DistanceY", -1, 1, 10, 3, 188.216309),
    Sketcher.Constraint("DistanceY", -1, 1, 12, 3, 162.671991),
    Sketcher.Constraint("DistanceY", -1, 1, 20, 3, 60.494718),
    Sketcher.Constraint("DistanceY", 4, 3, 3, 3, 12.844318),
    Sketcher.Constraint("DistanceY", 6, 3, 5, 3, 12.844318),
    Sketcher.Constraint("DistanceY", 8, 3, 7, 3, 12.844318),
    Sketcher.Constraint("DistanceY", 14, 3, 13, 3, 12.844318),
    Sketcher.Constraint("DistanceY", 16, 3, 15, 3, 12.844318),
    Sketcher.Constraint("DistanceY", 18, 3, 17, 3, 12.844318),
])
sketch4.setExpression("Constraints[45]", "Params.sketch4_diameter")
pocket1 = body.newObject("PartDesign::Pocket", "Pocket")
pocket1.Profile = sketch4
pocket1.Type = "ThroughAll"
pocket1.Reversed = True

doc.recompute()
